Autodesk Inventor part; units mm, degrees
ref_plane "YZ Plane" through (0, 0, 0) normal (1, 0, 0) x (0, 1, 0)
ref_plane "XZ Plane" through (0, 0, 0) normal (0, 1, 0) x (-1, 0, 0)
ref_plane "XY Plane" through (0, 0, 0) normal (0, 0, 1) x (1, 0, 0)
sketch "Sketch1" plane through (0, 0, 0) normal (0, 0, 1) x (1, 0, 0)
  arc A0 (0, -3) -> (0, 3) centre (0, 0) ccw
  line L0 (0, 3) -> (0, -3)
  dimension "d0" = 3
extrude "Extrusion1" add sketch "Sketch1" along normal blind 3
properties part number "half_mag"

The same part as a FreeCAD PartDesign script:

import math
import FreeCAD as App
import Part
import Sketcher
Q = App.Units.Quantity

doc = App.newDocument("Part")
body = doc.addObject("PartDesign::Body", "Body")

# Sketch on XY plane
sketch1 = body.newObject("Sketcher::SketchObject", "Sketch")
sketch1.AttachmentSupport = (doc.getObject("XY_Plane"), [""])
sketch1.MapMode = "FlatFace"
sketch1.addGeometry([
    Part.LineSegment(App.Vector(0, 3, 0), App.Vector(0, -3, 0)),
    Part.ArcOfCircle(Part.Circle(App.Vector(0, 0, 0), App.Vector(0, 0, 1), 3), math.radians(-90), math.radians(90)),
], False)
sketch1.addConstraint([
    Sketcher.Constraint("Coincident", 0, 1, 1, 2),
    Sketcher.Constraint("Coincident", 1, 1, 0, 2),
    Sketcher.Constraint("Vertical", 0),
    Sketcher.Constraint("Coincident", 1, 3, -1, 1),
    Sketcher.Constraint("PointOnObject", 0, 1, -2),
    Sketcher.Constraint("Radius", 1, Q("3 mm")),
])
pad1 = body.newObject("PartDesign::Pad", "Pad")
pad1.Profile = sketch1
pad1.Length = 3

doc.recompute()
